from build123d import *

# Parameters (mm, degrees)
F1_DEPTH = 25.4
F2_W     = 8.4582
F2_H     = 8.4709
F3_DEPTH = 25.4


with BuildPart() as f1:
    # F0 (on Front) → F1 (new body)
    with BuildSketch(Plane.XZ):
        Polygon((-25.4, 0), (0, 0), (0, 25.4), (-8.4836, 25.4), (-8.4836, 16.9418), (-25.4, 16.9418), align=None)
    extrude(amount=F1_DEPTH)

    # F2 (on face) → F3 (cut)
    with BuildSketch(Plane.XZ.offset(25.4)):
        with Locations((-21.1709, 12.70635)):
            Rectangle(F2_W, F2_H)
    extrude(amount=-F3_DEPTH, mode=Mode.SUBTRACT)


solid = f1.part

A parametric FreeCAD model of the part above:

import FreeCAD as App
import Part
import Sketcher

V = App.Vector
Q = App.Units.Quantity

doc = App.newDocument("Part")
body = doc.addObject("PartDesign::Body", "Body")

# Sketch on XZ plane
sketch1 = body.newObject("Sketcher::SketchObject", "Sketch")
sketch1.AttachmentSupport = (doc.getObject("XZ_Plane"), [""])
sketch1.MapMode = "FlatFace"
sketch1.addGeometry(Part.LineSegment(V(-25.4, 0, 0), V(0, 0, 0)), False)
sketch1.addGeometry(Part.LineSegment(V(0, 0, 0), V(0, 25.4, 0)), False)
sketch1.addGeometry(Part.LineSegment(V(0, 25.4, 0), V(-8.4836, 25.4, 0)), False)
sketch1.addGeometry(Part.LineSegment(V(-8.4836, 25.4, 0), V(-8.4836, 16.9418, 0)), False)
sketch1.addGeometry(Part.LineSegment(V(-8.4836, 16.9418, 0), V(-25.4, 16.9418, 0)), False)
sketch1.addGeometry(Part.LineSegment(V(-25.4, 16.9418, 0), V(-25.4, 0, 0)), False)
sketch1.addConstraint(Sketcher.Constraint("Coincident", 0, 2, 1, 1))
sketch1.addConstraint(Sketcher.Constraint("Coincident", 1, 2, 2, 1))
sketch1.addConstraint(Sketcher.Constraint("Coincident", 2, 2, 3, 1))
sketch1.addConstraint(Sketcher.Constraint("Coincident", 3, 2, 4, 1))
sketch1.addConstraint(Sketcher.Constraint("Coincident", 4, 2, 5, 1))
sketch1.addConstraint(Sketcher.Constraint("Coincident", 5, 2, 0, 1))
sketch1.addConstraint(Sketcher.Constraint("Horizontal", 0))
sketch1.addConstraint(Sketcher.Constraint("Vertical", 1))
sketch1.addConstraint(Sketcher.Constraint("Horizontal", 2))
sketch1.addConstraint(Sketcher.Constraint("Vertical", 3))
sketch1.addConstraint(Sketcher.Constraint("Horizontal", 4))
sketch1.addConstraint(Sketcher.Constraint("Vertical", 5))
sketch1.addConstraint(Sketcher.Constraint("Coincident", 0, 2, -1, 1))
sketch1.addConstraint(Sketcher.Constraint("Equal", 0, 1))
sketch1.addConstraint(Sketcher.Constraint("DistanceX", 0, 1, 0, 2, Q("1 in")))
sketch1.addConstraint(Sketcher.Constraint("DistanceX", 2, 2, 2, 1, Q("0.334 in")))
sketch1.addConstraint(Sketcher.Constraint("DistanceY", 3, 2, 3, 1, Q("0.333 in")))
pad1 = body.newObject("PartDesign::Pad", "Pad")
pad1.Profile = sketch1
pad1.Length = Q("1 in")

# Sketch on XZ plane
sketch2 = body.newObject("Sketcher::SketchObject", "Sketch001")
sketch2.AttachmentSupport = (doc.getObject("XZ_Plane"), [""])
sketch2.MapMode = "FlatFace"
sketch2.AttachmentOffset = App.Placement(V(0, 0, 1 * 25.4), App.Rotation())
sketch2.addGeometry(Part.LineSegment(V(-25.4, 16.9418, 0), V(-25.4, 8.4709, 0)), False)
sketch2.addGeometry(Part.LineSegment(V(-25.4, 8.4709, 0), V(-16.9418, 8.4709, 0)), False)
sketch2.addGeometry(Part.LineSegment(V(-16.9418, 8.4709, 0), V(-16.9418, 16.9418, 0)), False)
sketch2.addGeometry(Part.LineSegment(V(-16.9418, 16.9418, 0), V(-25.4, 16.9418, 0)), False)
sketch2.addConstraint(Sketcher.Constraint("Coincident", 0, 2, 1, 1))
sketch2.addConstraint(Sketcher.Constraint("Coincident", 1, 2, 2, 1))
sketch2.addConstraint(Sketcher.Constraint("Coincident", 2, 2, 3, 1))
sketch2.addConstraint(Sketcher.Constraint("Coincident", 3, 2, 0, 1))
sketch2.addConstraint(Sketcher.Constraint("Vertical", 0))
sketch2.addConstraint(Sketcher.Constraint("Horizontal", 1))
sketch2.addConstraint(Sketcher.Constraint("Vertical", 2))
sketch2.addConstraint(Sketcher.Constraint("Horizontal", 3))
sketch2.addConstraint(Sketcher.Constraint("DistanceX", 0, 2, -1, 1, Q("1 in")))
sketch2.addConstraint(Sketcher.Constraint("DistanceX", 1, 1, 1, 2, Q("0.333 in")))
sketch2.addConstraint(Sketcher.Constraint("DistanceY", 0, 2, 0, 1, Q("0.3335 in")))
sketch2.addConstraint(Sketcher.Constraint("DistanceY", -1, 1, 2, 2, Q("0.667 in")))
pocket1 = body.newObject("PartDesign::Pocket", "Pocket")
pocket1.Profile = sketch2
pocket1.Length = Q("1 in")

doc.recompute()
